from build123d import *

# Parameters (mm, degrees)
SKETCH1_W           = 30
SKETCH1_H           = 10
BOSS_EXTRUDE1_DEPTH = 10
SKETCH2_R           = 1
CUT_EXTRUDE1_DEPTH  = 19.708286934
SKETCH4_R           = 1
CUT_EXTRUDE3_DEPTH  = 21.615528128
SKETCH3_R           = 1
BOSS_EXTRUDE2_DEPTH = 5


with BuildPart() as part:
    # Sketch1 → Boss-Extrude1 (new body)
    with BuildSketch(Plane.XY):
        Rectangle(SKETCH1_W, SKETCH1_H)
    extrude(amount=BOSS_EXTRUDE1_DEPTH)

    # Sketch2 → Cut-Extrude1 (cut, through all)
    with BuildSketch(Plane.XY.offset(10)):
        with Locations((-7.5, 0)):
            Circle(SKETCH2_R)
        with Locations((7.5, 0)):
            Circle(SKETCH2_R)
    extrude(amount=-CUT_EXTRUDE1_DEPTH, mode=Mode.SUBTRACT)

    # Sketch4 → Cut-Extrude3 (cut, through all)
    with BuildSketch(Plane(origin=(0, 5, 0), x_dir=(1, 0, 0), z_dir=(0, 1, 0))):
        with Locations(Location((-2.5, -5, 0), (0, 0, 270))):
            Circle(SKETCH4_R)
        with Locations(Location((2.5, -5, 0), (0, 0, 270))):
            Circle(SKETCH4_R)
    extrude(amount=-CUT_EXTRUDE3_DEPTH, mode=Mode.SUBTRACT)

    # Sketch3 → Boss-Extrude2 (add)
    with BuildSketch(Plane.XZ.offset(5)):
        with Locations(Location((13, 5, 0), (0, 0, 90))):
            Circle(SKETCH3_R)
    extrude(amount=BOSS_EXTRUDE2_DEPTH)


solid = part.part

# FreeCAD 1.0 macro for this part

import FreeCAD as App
import Part
import Sketcher
Q = App.Units.Quantity


def add_polygon(sketch, points):
    """Adds a closed chain of lines whose ends are joined by coincident constraints."""
    first, n = sketch.GeometryCount, len(points)
    for a, b in zip(points, points[1:] + points[:1]):
        sketch.addGeometry(Part.LineSegment(App.Vector(*a, 0), App.Vector(*b, 0)), False)
    for i in range(n):
        sketch.addConstraint(Sketcher.Constraint("Coincident", first + i, 2, first + (i + 1) % n, 1))

doc = App.newDocument("Part")
body = doc.addObject("PartDesign::Body", "Body")

# Sketch on XY plane
sketch1 = body.newObject("Sketcher::SketchObject", "Sketch")
sketch1.AttachmentSupport = (doc.getObject("XY_Plane"), [""])
sketch1.MapMode = "FlatFace"
add_polygon(sketch1, [(-15, 5), (-15, -5), (15, -5), (15, 5)])  # lines 0-3
sketch1.addConstraint(Sketcher.Constraint("Vertical", 0))
sketch1.addConstraint(Sketcher.Constraint("Horizontal", 1))
sketch1.addConstraint(Sketcher.Constraint("Vertical", 2))
sketch1.addConstraint(Sketcher.Constraint("Horizontal", 3))
sketch1.addConstraint(Sketcher.Constraint("Symmetric", 0, 2, 2, 2, -1, 1))
sketch1.addConstraint(Sketcher.Constraint("DistanceX", 1, 1, 1, 2, Q("30 mm")))
sketch1.addConstraint(Sketcher.Constraint("DistanceY", 0, 2, 0, 1, Q("10 mm")))
pad1 = body.newObject("PartDesign::Pad", "Pad")
pad1.Profile = sketch1
pad1.Length = 10

# Sketch on XY plane
sketch2 = body.newObject("Sketcher::SketchObject", "Sketch001")
sketch2.AttachmentSupport = (doc.getObject("XY_Plane"), [""])
sketch2.MapMode = "FlatFace"
sketch2.AttachmentOffset = App.Placement(App.Vector(0, 0, 10), App.Rotation())
sketch2.addGeometry(Part.Circle(App.Vector(-7.5, 0, 0), App.Vector(0, 0, 1), 1), False)
sketch2.addGeometry(Part.Circle(App.Vector(7.5, 0, 0), App.Vector(0, 0, 1), 1), False)
sketch2.addConstraint(Sketcher.Constraint("Equal", 0, 1))
sketch2.addConstraint(Sketcher.Constraint("Symmetric", 0, 3, 1, 3, -1, 1))
sketch2.addConstraint(Sketcher.Constraint("PointOnObject", 0, 3, -1))
sketch2.addConstraint(Sketcher.Constraint("Diameter", 0, Q("2 mm")))
sketch2.addConstraint(Sketcher.Constraint("DistanceX", 0, 3, 1, 3, Q("15 mm")))
pocket1 = body.newObject("PartDesign::Pocket", "Pocket")
pocket1.Profile = sketch2
pocket1.Type = "ThroughAll"

# Sketch on XZ plane
sketch3 = body.newObject("Sketcher::SketchObject", "Sketch002")
sketch3.AttachmentSupport = (doc.getObject("XZ_Plane"), [""])
sketch3.MapMode = "FlatFace"
sketch3.AttachmentOffset = App.Placement(App.Vector(0, 0, -5), App.Rotation())
sketch3.addGeometry(Part.Circle(App.Vector(-2.5, 5, 0), App.Vector(0, 0, 1), 1), False)
sketch3.addGeometry(Part.Circle(App.Vector(2.5, 5, 0), App.Vector(0, 0, 1), 1), False)
sketch3.addConstraint(Sketcher.Constraint("Equal", 0, 1))
sketch3.addConstraint(Sketcher.Constraint("Symmetric", 0, 3, 1, 3, -2))
sketch3.addConstraint(Sketcher.Constraint("Diameter", 0, Q("2 mm")))
sketch3.addConstraint(Sketcher.Constraint("DistanceY", -1, 1, 0, 3, Q("5 mm")))
sketch3.addConstraint(Sketcher.Constraint("DistanceX", 0, 3, 1, 3, Q("5 mm")))
pocket2 = body.newObject("PartDesign::Pocket", "Pocket001")
pocket2.Profile = sketch3
pocket2.Type = "ThroughAll"
pocket2.Reversed = True

# Sketch on XZ plane
sketch4 = body.newObject("Sketcher::SketchObject", "Sketch003")
sketch4.AttachmentSupport = (doc.getObject("XZ_Plane"), [""])
sketch4.MapMode = "FlatFace"
sketch4.AttachmentOffset = App.Placement(App.Vector(0, 0, 5), App.Rotation())
sketch4.addGeometry(Part.Circle(App.Vector(13, 5, 0), App.Vector(0, 0, 1), 1), False)
sketch4.addConstraint(Sketcher.Constraint("Diameter", 0, Q("2 mm")))
sketch4.addConstraint(Sketcher.Constraint("DistanceX", -1, 1, 0, 3, Q("13 mm")))
sketch4.addConstraint(Sketcher.Constraint("DistanceY", -1, 1, 0, 3, Q("5 mm")))
pad2 = body.newObject("PartDesign::Pad", "Pad001")
pad2.Profile = sketch4
pad2.Length = 5

doc.recompute()
